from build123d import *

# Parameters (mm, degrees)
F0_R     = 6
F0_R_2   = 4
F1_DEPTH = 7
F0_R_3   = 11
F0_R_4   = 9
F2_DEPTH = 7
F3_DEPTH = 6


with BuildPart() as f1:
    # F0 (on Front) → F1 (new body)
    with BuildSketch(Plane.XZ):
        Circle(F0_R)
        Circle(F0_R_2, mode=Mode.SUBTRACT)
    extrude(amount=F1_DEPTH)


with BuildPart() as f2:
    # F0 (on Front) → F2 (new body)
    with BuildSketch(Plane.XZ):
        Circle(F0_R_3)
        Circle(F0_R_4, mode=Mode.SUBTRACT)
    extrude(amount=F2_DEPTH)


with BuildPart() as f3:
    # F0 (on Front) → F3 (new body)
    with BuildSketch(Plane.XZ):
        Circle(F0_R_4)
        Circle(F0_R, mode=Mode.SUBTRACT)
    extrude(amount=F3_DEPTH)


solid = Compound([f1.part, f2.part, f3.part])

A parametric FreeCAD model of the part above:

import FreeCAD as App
import Part
import Sketcher

V = App.Vector
Q = App.Units.Quantity

doc = App.newDocument("Part")
body = doc.addObject("PartDesign::Body", "Body")

# Sketch on XZ plane
sketch1 = body.newObject("Sketcher::SketchObject", "Sketch")
sketch1.AttachmentSupport = (doc.getObject("XZ_Plane"), [""])
sketch1.MapMode = "FlatFace"
sketch1.addGeometry([
    Part.Circle(V(0, 0, 0), V(0, 0, 1), 6),
    Part.Circle(V(0, 0, 0), V(0, 0, 1), 4),
], False)
sketch1.addConstraint([
    Sketcher.Constraint("Coincident", 0, 3, -1, 1),
    Sketcher.Constraint("Coincident", 1, 3, -1, 1),
    Sketcher.Constraint("Diameter", 0, Q("12 mm")),
    Sketcher.Constraint("Diameter", 1, Q("8 mm")),
])
pad1 = body.newObject("PartDesign::Pad", "Pad")
pad1.Profile = sketch1
pad1.Length = 7
body2 = doc.addObject("PartDesign::Body", "Body001")

# Sketch on XZ plane
sketch2 = body2.newObject("Sketcher::SketchObject", "Sketch001")
sketch2.AttachmentSupport = (doc.getObject("XZ_Plane001"), [""])
sketch2.MapMode = "FlatFace"
sketch2.addGeometry([
    Part.Circle(V(0, 0, 0), V(0, 0, 1), 11),
    Part.Circle(V(0, 0, 0), V(0, 0, 1), 9),
], False)
sketch2.addConstraint([
    Sketcher.Constraint("Coincident", 0, 3, -1, 1),
    Sketcher.Constraint("Coincident", 1, 3, -1, 1),
    Sketcher.Constraint("Diameter", 0, Q("22 mm")),
    Sketcher.Constraint("Diameter", 1, Q("18 mm")),
])
pad2 = body2.newObject("PartDesign::Pad", "Pad001")
pad2.Profile = sketch2
pad2.Length = 7
body3 = doc.addObject("PartDesign::Body", "Body002")

# Sketch on XZ plane
sketch3 = body3.newObject("Sketcher::SketchObject", "Sketch002")
sketch3.AttachmentSupport = (doc.getObject("XZ_Plane002"), [""])
sketch3.MapMode = "FlatFace"
sketch3.addGeometry([
    Part.Circle(V(0, 0, 0), V(0, 0, 1), 9),
    Part.Circle(V(0, 0, 0), V(0, 0, 1), 6),
], False)
sketch3.addConstraint([
    Sketcher.Constraint("Coincident", 0, 3, -1, 1),
    Sketcher.Constraint("Coincident", 1, 3, -1, 1),
    Sketcher.Constraint("Diameter", 0, Q("18 mm")),
    Sketcher.Constraint("Diameter", 1, Q("12 mm")),
])
pad3 = body3.newObject("PartDesign::Pad", "Pad002")
pad3.Profile = sketch3
pad3.Length = 6

doc.recompute()
